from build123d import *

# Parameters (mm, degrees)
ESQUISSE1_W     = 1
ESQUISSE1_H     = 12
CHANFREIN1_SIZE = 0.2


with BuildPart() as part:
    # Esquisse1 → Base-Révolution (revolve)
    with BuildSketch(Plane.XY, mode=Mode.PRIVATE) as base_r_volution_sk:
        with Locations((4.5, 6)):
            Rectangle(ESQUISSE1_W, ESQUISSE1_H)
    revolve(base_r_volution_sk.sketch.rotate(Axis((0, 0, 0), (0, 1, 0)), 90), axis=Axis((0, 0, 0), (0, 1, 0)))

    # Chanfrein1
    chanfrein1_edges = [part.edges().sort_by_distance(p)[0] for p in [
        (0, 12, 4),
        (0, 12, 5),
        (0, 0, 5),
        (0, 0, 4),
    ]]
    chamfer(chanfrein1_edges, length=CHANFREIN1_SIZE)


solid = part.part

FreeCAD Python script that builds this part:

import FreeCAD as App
import Part
import Sketcher


def edges_at(feature, points):
    """Names of the edges that pass closest to the given points."""
    edges = feature.Shape.Edges
    near = lambda p: min(range(len(edges)), key=lambda i: edges[i].distToShape(Part.Vertex(*p))[0])
    return sorted({f"Edge{near(p) + 1}" for p in points})

doc = App.newDocument("Part")
body = doc.addObject("PartDesign::Body", "Body")

# Sketch on XY plane
sketch1 = body.newObject("Sketcher::SketchObject", "Sketch")
sketch1.AttachmentSupport = (doc.getObject("XY_Plane"), [""])
sketch1.MapMode = "FlatFace"
sketch1.addGeometry(Part.LineSegment(App.Vector(4, 12, 0), App.Vector(4, 0, 0)), False)
sketch1.addGeometry(Part.LineSegment(App.Vector(4, 0, 0), App.Vector(5, 0, 0)), False)
sketch1.addGeometry(Part.LineSegment(App.Vector(5, 0, 0), App.Vector(5, 12, 0)), False)
sketch1.addGeometry(Part.LineSegment(App.Vector(5, 12, 0), App.Vector(4, 12, 0)), False)
sketch1.addConstraint(Sketcher.Constraint("Coincident", 0, 2, 1, 1))
sketch1.addConstraint(Sketcher.Constraint("Coincident", 1, 2, 2, 1))
sketch1.addConstraint(Sketcher.Constraint("Coincident", 2, 2, 3, 1))
sketch1.addConstraint(Sketcher.Constraint("Coincident", 3, 2, 0, 1))
sketch1.addConstraint(Sketcher.Constraint("Vertical", 0))
sketch1.addConstraint(Sketcher.Constraint("Horizontal", 1))
sketch1.addConstraint(Sketcher.Constraint("Vertical", 2))
sketch1.addConstraint(Sketcher.Constraint("Horizontal", 3))
sketch1.addConstraint(Sketcher.Constraint("PointOnObject", 0, 2, -1))
sketch1.addConstraint(Sketcher.Constraint("DistanceX", 1, 1, 1, 2, 1.0))
sketch1.addConstraint(Sketcher.Constraint("DistanceY", 0, 2, 0, 1, 12.0))
sketch1.addConstraint(Sketcher.Constraint("DistanceX", -1, 1, 0, 2, 4.0))
revolution = body.newObject("PartDesign::Revolution", "Revolution")
revolution.Profile = sketch1
revolution.ReferenceAxis = (sketch1, ["V_Axis"])
revolution.Angle = 360
doc.recompute()

chamfer = body.newObject("PartDesign::Chamfer", "Chamfer")
chamfer.Base = (revolution, edges_at(revolution, [
    (0, 12, 4),
    (0, 12, 5),
    (0, 0, 5),
    (0, 0, 4),
]))
chamfer.Size = 0.2

doc.recompute()
